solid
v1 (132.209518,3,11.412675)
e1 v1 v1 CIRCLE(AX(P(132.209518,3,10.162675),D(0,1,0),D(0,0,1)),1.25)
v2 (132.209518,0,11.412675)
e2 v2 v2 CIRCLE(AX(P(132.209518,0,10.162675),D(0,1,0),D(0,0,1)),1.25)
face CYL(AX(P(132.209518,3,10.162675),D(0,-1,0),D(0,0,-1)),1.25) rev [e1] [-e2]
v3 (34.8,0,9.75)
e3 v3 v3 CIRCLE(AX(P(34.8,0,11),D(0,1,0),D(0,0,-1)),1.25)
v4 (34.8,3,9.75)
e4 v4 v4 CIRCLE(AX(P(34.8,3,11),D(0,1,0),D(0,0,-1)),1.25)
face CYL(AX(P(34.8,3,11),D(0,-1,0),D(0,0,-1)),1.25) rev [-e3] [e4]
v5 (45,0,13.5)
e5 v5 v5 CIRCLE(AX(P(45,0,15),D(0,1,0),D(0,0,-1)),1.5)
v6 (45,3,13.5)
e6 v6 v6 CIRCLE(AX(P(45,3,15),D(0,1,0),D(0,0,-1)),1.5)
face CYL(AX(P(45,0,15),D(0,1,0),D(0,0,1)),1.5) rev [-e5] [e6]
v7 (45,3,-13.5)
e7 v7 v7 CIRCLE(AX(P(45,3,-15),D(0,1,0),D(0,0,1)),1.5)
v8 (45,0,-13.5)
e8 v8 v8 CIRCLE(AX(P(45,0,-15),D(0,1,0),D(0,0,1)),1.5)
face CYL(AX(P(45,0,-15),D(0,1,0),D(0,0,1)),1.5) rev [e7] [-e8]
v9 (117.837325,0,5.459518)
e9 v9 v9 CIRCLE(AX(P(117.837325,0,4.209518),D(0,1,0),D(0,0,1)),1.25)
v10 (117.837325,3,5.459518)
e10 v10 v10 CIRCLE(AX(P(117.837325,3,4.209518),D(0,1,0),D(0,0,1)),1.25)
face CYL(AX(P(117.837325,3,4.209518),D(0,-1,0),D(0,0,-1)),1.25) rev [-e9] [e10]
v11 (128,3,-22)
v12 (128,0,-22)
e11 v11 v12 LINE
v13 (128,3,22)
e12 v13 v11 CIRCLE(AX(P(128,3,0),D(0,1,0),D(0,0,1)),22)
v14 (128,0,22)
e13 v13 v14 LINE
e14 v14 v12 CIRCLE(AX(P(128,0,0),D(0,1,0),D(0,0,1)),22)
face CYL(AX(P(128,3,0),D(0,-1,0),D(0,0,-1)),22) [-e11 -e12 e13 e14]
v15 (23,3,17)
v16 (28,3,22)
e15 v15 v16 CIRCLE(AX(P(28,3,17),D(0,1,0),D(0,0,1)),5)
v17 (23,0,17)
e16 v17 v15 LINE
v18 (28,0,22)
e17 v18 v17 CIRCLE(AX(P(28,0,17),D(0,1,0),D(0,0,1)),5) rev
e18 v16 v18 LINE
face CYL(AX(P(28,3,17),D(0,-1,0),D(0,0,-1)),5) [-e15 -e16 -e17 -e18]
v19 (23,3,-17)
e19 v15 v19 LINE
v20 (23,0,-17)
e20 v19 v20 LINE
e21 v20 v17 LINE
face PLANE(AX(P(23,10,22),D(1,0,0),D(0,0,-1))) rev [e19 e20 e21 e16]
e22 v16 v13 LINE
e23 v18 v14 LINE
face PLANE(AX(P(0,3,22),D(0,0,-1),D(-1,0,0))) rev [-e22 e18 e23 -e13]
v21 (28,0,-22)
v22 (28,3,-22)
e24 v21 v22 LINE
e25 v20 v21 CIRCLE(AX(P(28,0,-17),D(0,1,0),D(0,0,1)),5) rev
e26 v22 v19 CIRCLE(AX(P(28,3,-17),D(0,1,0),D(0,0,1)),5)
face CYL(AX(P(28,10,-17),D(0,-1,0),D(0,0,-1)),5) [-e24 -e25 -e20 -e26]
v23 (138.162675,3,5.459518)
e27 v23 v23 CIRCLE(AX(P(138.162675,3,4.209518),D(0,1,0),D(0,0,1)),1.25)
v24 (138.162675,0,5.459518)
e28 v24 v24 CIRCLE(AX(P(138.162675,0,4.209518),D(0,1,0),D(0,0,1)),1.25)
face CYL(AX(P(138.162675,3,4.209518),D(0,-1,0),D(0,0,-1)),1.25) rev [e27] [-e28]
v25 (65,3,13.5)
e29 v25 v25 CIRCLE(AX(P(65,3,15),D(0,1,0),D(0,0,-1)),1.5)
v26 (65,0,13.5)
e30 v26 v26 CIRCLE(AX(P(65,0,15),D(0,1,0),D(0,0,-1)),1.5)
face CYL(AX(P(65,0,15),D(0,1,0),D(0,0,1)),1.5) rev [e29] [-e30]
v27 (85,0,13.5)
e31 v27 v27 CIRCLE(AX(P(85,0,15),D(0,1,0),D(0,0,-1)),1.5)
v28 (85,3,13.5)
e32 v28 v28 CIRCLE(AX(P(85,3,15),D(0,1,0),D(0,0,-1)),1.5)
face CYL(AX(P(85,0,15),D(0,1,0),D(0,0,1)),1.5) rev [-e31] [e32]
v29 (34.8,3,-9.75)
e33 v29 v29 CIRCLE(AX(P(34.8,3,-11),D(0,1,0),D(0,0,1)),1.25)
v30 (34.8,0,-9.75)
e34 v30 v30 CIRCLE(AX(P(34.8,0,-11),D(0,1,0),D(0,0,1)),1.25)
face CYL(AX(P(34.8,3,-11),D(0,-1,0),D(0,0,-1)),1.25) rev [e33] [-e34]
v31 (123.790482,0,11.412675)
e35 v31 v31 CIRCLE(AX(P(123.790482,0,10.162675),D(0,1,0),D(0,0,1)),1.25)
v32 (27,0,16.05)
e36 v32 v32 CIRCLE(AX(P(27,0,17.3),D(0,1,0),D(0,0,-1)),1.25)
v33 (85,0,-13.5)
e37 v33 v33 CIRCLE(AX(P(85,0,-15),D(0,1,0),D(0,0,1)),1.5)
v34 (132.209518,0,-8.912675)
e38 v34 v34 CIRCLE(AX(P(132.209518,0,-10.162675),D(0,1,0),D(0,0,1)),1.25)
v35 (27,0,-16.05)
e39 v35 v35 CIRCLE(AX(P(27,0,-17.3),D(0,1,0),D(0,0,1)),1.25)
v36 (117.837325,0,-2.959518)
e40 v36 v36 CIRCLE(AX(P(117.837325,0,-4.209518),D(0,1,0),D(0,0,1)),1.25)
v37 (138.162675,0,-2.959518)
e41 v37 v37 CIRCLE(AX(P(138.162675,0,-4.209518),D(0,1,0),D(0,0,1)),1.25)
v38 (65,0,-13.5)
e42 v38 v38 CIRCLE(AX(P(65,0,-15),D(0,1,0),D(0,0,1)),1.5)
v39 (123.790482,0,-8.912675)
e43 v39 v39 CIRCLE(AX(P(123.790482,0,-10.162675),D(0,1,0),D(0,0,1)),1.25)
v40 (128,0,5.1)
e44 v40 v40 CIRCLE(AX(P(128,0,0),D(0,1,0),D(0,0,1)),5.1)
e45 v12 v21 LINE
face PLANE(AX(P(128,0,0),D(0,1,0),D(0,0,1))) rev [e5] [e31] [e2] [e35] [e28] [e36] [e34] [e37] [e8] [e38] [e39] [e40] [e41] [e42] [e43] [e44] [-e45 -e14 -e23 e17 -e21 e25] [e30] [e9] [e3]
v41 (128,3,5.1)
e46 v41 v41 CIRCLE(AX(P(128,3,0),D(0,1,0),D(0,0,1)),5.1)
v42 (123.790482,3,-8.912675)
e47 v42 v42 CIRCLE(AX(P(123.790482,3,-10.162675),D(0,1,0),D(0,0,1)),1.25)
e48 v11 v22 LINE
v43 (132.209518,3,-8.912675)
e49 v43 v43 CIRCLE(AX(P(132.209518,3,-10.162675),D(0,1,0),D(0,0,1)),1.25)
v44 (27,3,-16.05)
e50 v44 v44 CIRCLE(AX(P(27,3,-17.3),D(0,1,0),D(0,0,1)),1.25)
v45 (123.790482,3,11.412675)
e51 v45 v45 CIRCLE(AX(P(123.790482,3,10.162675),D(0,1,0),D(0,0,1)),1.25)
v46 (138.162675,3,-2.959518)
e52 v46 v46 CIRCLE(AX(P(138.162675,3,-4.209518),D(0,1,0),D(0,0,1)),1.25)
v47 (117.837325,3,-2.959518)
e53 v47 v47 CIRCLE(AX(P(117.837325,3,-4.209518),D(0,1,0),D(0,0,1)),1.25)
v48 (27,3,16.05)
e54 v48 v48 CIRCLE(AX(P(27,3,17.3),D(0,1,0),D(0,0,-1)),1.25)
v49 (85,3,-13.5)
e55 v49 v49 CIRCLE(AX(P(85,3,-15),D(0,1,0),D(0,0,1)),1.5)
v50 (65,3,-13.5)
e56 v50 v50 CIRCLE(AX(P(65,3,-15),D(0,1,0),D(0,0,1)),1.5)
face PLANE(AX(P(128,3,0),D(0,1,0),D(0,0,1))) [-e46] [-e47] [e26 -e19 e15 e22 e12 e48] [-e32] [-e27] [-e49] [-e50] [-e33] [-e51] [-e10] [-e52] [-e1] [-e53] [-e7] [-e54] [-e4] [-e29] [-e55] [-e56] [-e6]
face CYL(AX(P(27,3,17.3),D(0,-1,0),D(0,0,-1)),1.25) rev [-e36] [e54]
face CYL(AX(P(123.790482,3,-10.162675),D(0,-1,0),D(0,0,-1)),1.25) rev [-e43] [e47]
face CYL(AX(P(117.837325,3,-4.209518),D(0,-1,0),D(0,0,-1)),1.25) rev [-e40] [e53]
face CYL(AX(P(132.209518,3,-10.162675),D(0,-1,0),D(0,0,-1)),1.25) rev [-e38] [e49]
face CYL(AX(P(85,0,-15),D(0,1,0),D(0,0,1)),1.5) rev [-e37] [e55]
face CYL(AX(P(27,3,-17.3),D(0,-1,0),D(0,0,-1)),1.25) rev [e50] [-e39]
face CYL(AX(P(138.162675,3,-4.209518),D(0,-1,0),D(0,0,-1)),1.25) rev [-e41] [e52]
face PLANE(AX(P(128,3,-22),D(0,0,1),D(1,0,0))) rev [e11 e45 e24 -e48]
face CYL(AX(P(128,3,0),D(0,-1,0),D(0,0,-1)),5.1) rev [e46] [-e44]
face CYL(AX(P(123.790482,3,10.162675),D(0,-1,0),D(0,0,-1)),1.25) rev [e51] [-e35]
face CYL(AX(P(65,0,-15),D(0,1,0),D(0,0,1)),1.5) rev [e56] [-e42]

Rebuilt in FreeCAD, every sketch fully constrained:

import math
import FreeCAD as App
import Part
import Sketcher


def edges_at(feature, points):
    """Names of the edges that pass closest to the given points."""
    edges = feature.Shape.Edges
    near = lambda p: min(range(len(edges)), key=lambda i: edges[i].distToShape(Part.Vertex(*p))[0])
    return sorted({f"Edge{near(p) + 1}" for p in points})

doc = App.newDocument("Part")
params = doc.addObject("Spreadsheet::Sheet", "Params")
for row, (alias, value) in enumerate([
    ("sketch1_radius", "21 mm"),
    ("sketch1_radius2", "22 mm"),
    ("sketch1_diameter", "2.5 mm"),
    ("sketch1_diameter2", "10.2 mm"),
    ("sketch1_width", "128 mm"),
    ("pad1_length", "3 mm"),
    ("fillet_radius", "1.5 mm"),
    ("sketch2_diameter", "3 mm"),
    ("pocket1_length", "3 mm"),
    ("sketch3_height", "44 mm"),
    ("pocket2_length", "10 mm"),
    ("fillet2_radius", "5 mm"),
], start=1):
    params.set(f"A{row}", alias)
    params.set(f"B{row}", "=" + value)
    params.setAlias(f"B{row}", alias)

body = doc.addObject("PartDesign::Body", "Body")

# Sketch on XZ plane
sketch1 = doc.addObject("Sketcher::SketchObject", "Sketch")
body.addObject(sketch1)
sketch1.AttachmentSupport = (doc.XZ_Plane, [""])
sketch1.MapMode = "FlatFace"
sketch1.addGeometry([
    Part.LineSegment(App.Vector(128, -22, 0), App.Vector(0, -22, 0)),  # 0
    Part.LineSegment(App.Vector(0, -22, 0), App.Vector(0, -16.5, 0)),  # 1
    Part.ArcOfCircle(Part.Circle(App.Vector(-13, 0, 0), App.Vector(0, 0, 1), 21), math.radians(-52), math.radians(52)),  # 2
    Part.LineSegment(App.Vector(0, 16.5, 0), App.Vector(0, 22, 0)),  # 3
    Part.LineSegment(App.Vector(0, 22, 0), App.Vector(128, 22, 0)),  # 4
    Part.ArcOfCircle(Part.Circle(App.Vector(128, 0, 0), App.Vector(0, 0, 1), 22), math.radians(-90), math.radians(90)),  # 5
    Part.Circle(App.Vector(5, 17.3, 0), App.Vector(0, 0, 1), 1.2),  # 6
    Part.Circle(App.Vector(27, 17.3, 0), App.Vector(0, 0, 1), 1.2),  # 7
    Part.Circle(App.Vector(34.8, 11, 0), App.Vector(0, 0, 1), 1.2),  # 8
    Part.Circle(App.Vector(123.8, 10.2, 0), App.Vector(0, 0, 1), 1.2),  # 9
    Part.Circle(App.Vector(132.2, 10.2, 0), App.Vector(0, 0, 1), 1.2),  # 10
    Part.Circle(App.Vector(117.8, 4.2, 0), App.Vector(0, 0, 1), 1.2),  # 11
    Part.Circle(App.Vector(138.2, 4.2, 0), App.Vector(0, 0, 1), 1.2),  # 12
    Part.Circle(App.Vector(34.8, -11, 0), App.Vector(0, 0, 1), 1.2),  # 13
    Part.Circle(App.Vector(5, -17.3, 0), App.Vector(0, 0, 1), 1.2),  # 14
    Part.Circle(App.Vector(27, -17.3, 0), App.Vector(0, 0, 1), 1.2),  # 15
    Part.Circle(App.Vector(117.8, -4.2, 0), App.Vector(0, 0, 1), 1.2),  # 16
    Part.Circle(App.Vector(128, 0, 0), App.Vector(0, 0, 1), 5.1),  # 17
    Part.Circle(App.Vector(138.2, -4.2, 0), App.Vector(0, 0, 1), 1.2),  # 18
    Part.Circle(App.Vector(123.8, -10.2, 0), App.Vector(0, 0, 1), 1.2),  # 19
    Part.Circle(App.Vector(132.2, -10.2, 0), App.Vector(0, 0, 1), 1.2),  # 20
], False)
sketch1.addConstraint([
    Sketcher.Constraint("Coincident", 0, 2, 1, 1),
    Sketcher.Constraint("Coincident", 1, 2, 2, 1),
    Sketcher.Constraint("Coincident", 2, 2, 3, 1),
    Sketcher.Constraint("Coincident", 3, 2, 4, 1),
    Sketcher.Constraint("Tangent", 4, 2, 5, 2),
    Sketcher.Constraint("Tangent", 5, 1, 0, 1),
    Sketcher.Constraint("Horizontal", 0),
    Sketcher.Constraint("Vertical", 1),
    Sketcher.Constraint("Vertical", 3),
    Sketcher.Constraint("Horizontal", 4),
    Sketcher.Constraint("Coincident", 17, 3, 5, 3),
    Sketcher.Constraint("Equal", 6, 7),
    Sketcher.Constraint("Equal", 7, 8),
    Sketcher.Constraint("Equal", 8, 9),
    Sketcher.Constraint("Equal", 9, 10),
    Sketcher.Constraint("Equal", 10, 11),
    Sketcher.Constraint("Equal", 11, 12),
    Sketcher.Constraint("Equal", 12, 13),
    Sketcher.Constraint("Equal", 13, 14),
    Sketcher.Constraint("Equal", 14, 15),
    Sketcher.Constraint("Equal", 15, 16),
    Sketcher.Constraint("Equal", 16, 18),
    Sketcher.Constraint("Equal", 18, 19),
    Sketcher.Constraint("Equal", 19, 20),
    Sketcher.Constraint("Symmetric", 1, 2, 2, 2, -1, 1),
    Sketcher.Constraint("Symmetric", 8, 3, 13, 3, -1),
    Sketcher.Constraint("Symmetric", 6, 3, 14, 3, -1),
    Sketcher.Constraint("Symmetric", 7, 3, 15, 3, -1),
    Sketcher.Constraint("Symmetric", 11, 3, 16, 3, -1),
    Sketcher.Constraint("Symmetric", 12, 3, 18, 3, -1),
    Sketcher.Constraint("Symmetric", 9, 3, 19, 3, -1),
    Sketcher.Constraint("Symmetric", 10, 3, 20, 3, -1),
    Sketcher.Constraint("Symmetric", 0, 2, 3, 2, -1),
    Sketcher.Constraint("Horizontal", 6, 3, 7, 3),
    Sketcher.Constraint("Horizontal", 9, 3, 10, 3),
    Sketcher.Constraint("Horizontal", 11, 3, 12, 3),
    Sketcher.Constraint("Radius", 2, 21.0),
    Sketcher.Constraint("Radius", 5, 22.0),
    Sketcher.Constraint("Diameter", 6, 2.5),
    Sketcher.Constraint("Diameter", 17, 10.2),
    Sketcher.Constraint("DistanceX", 0, 2, 0, 1, 128.0),
    Sketcher.Constraint("DistanceX", 2, 3, -1, 1, 13.0),
    Sketcher.Constraint("DistanceX", -1, 1, 6, 3, 5.0),
    Sketcher.Constraint("DistanceX", -1, 1, 7, 3, 27.0),
    Sketcher.Constraint("DistanceY", -1, 1, 8, 3, 11.0),
    Sketcher.Constraint("DistanceY", -1, 1, 6, 3, 17.3),
    Sketcher.Constraint("DistanceX", -1, 1, 8, 3, 34.8),
    Sketcher.Constraint("DistanceX", 11, 3, 12, 3, 20.32535),
    Sketcher.Constraint("DistanceX", -1, 1, 9, 3, 123.790482),
    Sketcher.Constraint("DistanceY", -1, 1, 9, 3, 10.162675),
    Sketcher.Constraint("DistanceX", -1, 1, 10, 3, 132.209518),
    Sketcher.Constraint("DistanceX", -1, 1, 11, 3, 117.837325),
    Sketcher.Constraint("DistanceY", -1, 1, 11, 3, 4.209518),
])
sketch1.setExpression("Constraints[36]", "Params.sketch1_radius")
sketch1.setExpression("Constraints[37]", "Params.sketch1_radius2")
sketch1.setExpression("Constraints[38]", "Params.sketch1_diameter")
sketch1.setExpression("Constraints[39]", "Params.sketch1_diameter2")
sketch1.setExpression("Constraints[40]", "Params.sketch1_width")
pad1 = doc.addObject("PartDesign::Pad", "Pad")
body.addObject(pad1)
pad1.Profile = sketch1
pad1.setExpression("Length", "Params.pad1_length")
pad1.Reversed = True
doc.recompute()

fillet = doc.addObject("PartDesign::Fillet", "Fillet")
body.addObject(fillet)
fillet.Base = (pad1, edges_at(pad1, [
    (0, 1.5, 16.492),
    (0, 1.5, -16.492),
    (0, 1.5, -22),
    (0, 1.5, 22),
]))
fillet.setExpression("Radius", "Params.fillet_radius")

# Sketch on XZ plane
sketch2 = doc.addObject("Sketcher::SketchObject", "Sketch001")
body.addObject(sketch2)
sketch2.AttachmentSupport = (doc.XZ_Plane, [""])
sketch2.MapMode = "FlatFace"
sketch2.AttachmentOffset = App.Placement(App.Vector(0, 0, -3), App.Rotation())
sketch2.addGeometry([
    Part.Circle(App.Vector(45, -15, 0), App.Vector(0, 0, 1), 1.5),  # 0
    Part.Circle(App.Vector(65, -15, 0), App.Vector(0, 0, 1), 1.5),  # 1
    Part.Circle(App.Vector(85, -15, 0), App.Vector(0, 0, 1), 1.5),  # 2
    Part.Circle(App.Vector(85, 15, 0), App.Vector(0, 0, 1), 1.5),  # 3
    Part.Circle(App.Vector(65, 15, 0), App.Vector(0, 0, 1), 1.5),  # 4
    Part.Circle(App.Vector(45, 15, 0), App.Vector(0, 0, 1), 1.5),  # 5
], False)
sketch2.addConstraint([
    Sketcher.Constraint("Equal", 0, 1),
    Sketcher.Constraint("Equal", 1, 2),
    Sketcher.Constraint("Equal", 2, 3),
    Sketcher.Constraint("Equal", 3, 4),
    Sketcher.Constraint("Equal", 4, 5),
    Sketcher.Constraint("Symmetric", 2, 3, 3, 3, -1),
    Sketcher.Constraint("Symmetric", 1, 3, 4, 3, -1),
    Sketcher.Constraint("Symmetric", 0, 3, 5, 3, -1),
    Sketcher.Constraint("Horizontal", 0, 3, 1, 3),
    Sketcher.Constraint("Horizontal", 1, 3, 2, 3),
    Sketcher.Constraint("Diameter", 0, 3.0),
    Sketcher.Constraint("DistanceX", -1, 1, 0, 3, 45.0),
    Sketcher.Constraint("DistanceY", 0, 3, -1, 1, 15.0),
    Sketcher.Constraint("DistanceX", -1, 1, 1, 3, 65.0),
    Sketcher.Constraint("DistanceX", -1, 1, 2, 3, 85.0),
])
sketch2.setExpression("Constraints[10]", "Params.sketch2_diameter")
pocket1 = doc.addObject("PartDesign::Pocket", "Pocket")
body.addObject(pocket1)
pocket1.Profile = sketch2
pocket1.setExpression("Length", "Params.pocket1_length")
pocket1.Reversed = True

# Sketch on XZ plane
sketch3 = doc.addObject("Sketcher::SketchObject", "Sketch002")
body.addObject(sketch3)
sketch3.AttachmentSupport = (doc.XZ_Plane, [""])
sketch3.MapMode = "FlatFace"
sketch3.addGeometry([
    Part.LineSegment(App.Vector(-10, 22, 0), App.Vector(-10, -22, 0)),
    Part.LineSegment(App.Vector(-10, -22, 0), App.Vector(23, -22, 0)),
    Part.LineSegment(App.Vector(23, -22, 0), App.Vector(23, 22, 0)),
    Part.LineSegment(App.Vector(23, 22, 0), App.Vector(-10, 22, 0)),
], False)
sketch3.addConstraint([
    Sketcher.Constraint("Coincident", 0, 2, 1, 1),
    Sketcher.Constraint("Coincident", 1, 2, 2, 1),
    Sketcher.Constraint("Coincident", 2, 2, 3, 1),
    Sketcher.Constraint("Coincident", 3, 2, 0, 1),
    Sketcher.Constraint("Vertical", 0),
    Sketcher.Constraint("Horizontal", 1),
    Sketcher.Constraint("Vertical", 2),
    Sketcher.Constraint("Horizontal", 3),
    Sketcher.Constraint("DistanceY", 0, 2, 0, 1, 44.0),
    Sketcher.Constraint("DistanceY", 0, 2, -1, 1, 22.0),
    Sketcher.Constraint("DistanceX", -1, 1, 1, 2, 23.0),
    Sketcher.Constraint("DistanceX", 1, 1, 1, 2, 33.04558),
])
sketch3.setExpression("Constraints[8]", "Params.sketch3_height")
pocket2 = doc.addObject("PartDesign::Pocket", "Pocket001")
body.addObject(pocket2)
pocket2.Profile = sketch3
pocket2.setExpression("Length", "Params.pocket2_length")
doc.recompute()

fillet2 = doc.addObject("PartDesign::Fillet", "Fillet001")
body.addObject(fillet2)
fillet2.Base = (pocket2, edges_at(pocket2, [(23, 1.5, 22), (23, 1.5, -22)]))
fillet2.setExpression("Radius", "Params.fillet2_radius")

doc.recompute()
